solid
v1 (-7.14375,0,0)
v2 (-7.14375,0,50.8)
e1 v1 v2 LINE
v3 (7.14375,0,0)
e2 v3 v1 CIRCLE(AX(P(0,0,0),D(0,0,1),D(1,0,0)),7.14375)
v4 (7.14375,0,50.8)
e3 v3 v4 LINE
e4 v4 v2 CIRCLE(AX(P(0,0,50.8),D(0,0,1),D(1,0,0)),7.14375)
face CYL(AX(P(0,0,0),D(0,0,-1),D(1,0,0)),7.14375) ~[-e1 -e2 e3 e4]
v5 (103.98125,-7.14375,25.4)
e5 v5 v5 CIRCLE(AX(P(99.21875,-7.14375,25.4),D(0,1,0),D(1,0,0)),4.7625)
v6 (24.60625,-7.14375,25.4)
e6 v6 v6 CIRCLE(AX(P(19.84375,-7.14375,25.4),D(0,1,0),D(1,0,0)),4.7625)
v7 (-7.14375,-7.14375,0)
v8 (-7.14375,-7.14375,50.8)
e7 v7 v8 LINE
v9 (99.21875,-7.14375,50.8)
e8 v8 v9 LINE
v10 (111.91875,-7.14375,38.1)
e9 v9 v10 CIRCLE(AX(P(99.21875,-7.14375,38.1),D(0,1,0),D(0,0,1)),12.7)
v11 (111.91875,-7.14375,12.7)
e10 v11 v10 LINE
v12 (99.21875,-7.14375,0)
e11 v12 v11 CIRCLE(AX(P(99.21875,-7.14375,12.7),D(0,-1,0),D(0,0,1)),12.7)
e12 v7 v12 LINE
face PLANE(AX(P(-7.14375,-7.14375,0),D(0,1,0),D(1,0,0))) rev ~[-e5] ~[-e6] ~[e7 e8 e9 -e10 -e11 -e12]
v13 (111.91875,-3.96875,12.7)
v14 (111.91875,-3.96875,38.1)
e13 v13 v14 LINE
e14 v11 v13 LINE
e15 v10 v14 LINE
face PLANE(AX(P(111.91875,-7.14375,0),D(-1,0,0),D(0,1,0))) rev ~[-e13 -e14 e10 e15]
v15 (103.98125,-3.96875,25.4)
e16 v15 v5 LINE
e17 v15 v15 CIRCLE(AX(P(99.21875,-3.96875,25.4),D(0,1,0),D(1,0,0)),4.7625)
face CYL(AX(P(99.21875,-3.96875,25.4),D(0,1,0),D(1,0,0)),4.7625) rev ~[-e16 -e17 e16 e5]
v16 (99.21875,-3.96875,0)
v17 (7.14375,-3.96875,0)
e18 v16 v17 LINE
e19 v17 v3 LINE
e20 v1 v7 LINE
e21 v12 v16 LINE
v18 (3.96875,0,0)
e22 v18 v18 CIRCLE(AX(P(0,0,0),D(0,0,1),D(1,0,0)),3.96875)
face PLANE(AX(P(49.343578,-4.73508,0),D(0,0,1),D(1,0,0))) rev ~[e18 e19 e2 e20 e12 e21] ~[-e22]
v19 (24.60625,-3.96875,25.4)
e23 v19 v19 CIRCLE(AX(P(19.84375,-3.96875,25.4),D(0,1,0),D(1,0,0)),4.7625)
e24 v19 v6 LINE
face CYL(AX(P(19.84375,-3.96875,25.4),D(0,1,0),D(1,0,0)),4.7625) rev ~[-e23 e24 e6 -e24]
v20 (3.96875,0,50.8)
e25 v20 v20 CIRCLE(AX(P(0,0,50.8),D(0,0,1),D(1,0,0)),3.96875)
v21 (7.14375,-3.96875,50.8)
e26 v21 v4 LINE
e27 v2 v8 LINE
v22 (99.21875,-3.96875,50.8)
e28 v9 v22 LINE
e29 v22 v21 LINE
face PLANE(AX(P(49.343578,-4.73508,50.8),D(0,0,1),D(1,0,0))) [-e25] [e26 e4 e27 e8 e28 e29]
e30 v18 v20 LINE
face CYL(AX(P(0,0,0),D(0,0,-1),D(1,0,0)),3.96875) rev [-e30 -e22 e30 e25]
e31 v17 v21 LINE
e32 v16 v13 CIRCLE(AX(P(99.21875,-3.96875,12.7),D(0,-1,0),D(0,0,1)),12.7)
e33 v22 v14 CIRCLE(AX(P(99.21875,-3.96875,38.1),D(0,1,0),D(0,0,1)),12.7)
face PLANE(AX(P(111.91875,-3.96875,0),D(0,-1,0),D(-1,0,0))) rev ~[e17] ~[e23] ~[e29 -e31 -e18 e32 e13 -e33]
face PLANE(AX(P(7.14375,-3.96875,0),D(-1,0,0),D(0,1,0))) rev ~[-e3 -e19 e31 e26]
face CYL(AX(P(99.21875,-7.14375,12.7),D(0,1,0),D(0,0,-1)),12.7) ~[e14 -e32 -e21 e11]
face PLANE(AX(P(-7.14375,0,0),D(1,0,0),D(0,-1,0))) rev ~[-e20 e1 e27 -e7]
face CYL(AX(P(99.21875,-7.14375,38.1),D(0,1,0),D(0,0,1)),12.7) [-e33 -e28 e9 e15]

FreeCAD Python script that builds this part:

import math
import FreeCAD as App
import Part
import Sketcher
from FreeCAD import Vector
Q = App.Units.Quantity


def edges_at(feature, points):
    """Names of the edges that pass closest to the given points."""
    edges = feature.Shape.Edges
    near = lambda p: min(range(len(edges)), key=lambda i: edges[i].distToShape(Part.Vertex(*p))[0])
    return sorted({f"Edge{near(p) + 1}" for p in points})

doc = App.newDocument("Part")
body = doc.addObject("PartDesign::Body", "Body")

# Sketch on XY plane
sketch1 = doc.addObject("Sketcher::SketchObject", "Sketch")
body.addObject(sketch1)
sketch1.AttachmentSupport = (doc.XY_Plane, [""])
sketch1.MapMode = "FlatFace"
sketch1.addGeometry([
    Part.ArcOfCircle(Part.Circle(Vector(0, 0, 0), Vector(0, 0, 1), 7.1), math.radians(0), math.radians(180)),  # 0
    Part.LineSegment(Vector(-7.1, 0, 0), Vector(-7.1, -7.1, 0)),  # 1
    Part.LineSegment(Vector(-7.1, -7.1, 0), Vector(111.9, -7.1, 0)),  # 2
    Part.LineSegment(Vector(111.9, -7.1, 0), Vector(111.9, -4, 0)),  # 3
    Part.LineSegment(Vector(111.9, -4, 0), Vector(7.1, -4, 0)),  # 4
    Part.LineSegment(Vector(7.1, -4, 0), Vector(7.1, 0, 0)),  # 5
    Part.Circle(Vector(0, 0, 0), Vector(0, 0, 1), 4),  # 6
], False)
sketch1.addConstraint([
    Sketcher.Constraint("Tangent", 0, 2, 1, 1),
    Sketcher.Constraint("Coincident", 1, 2, 2, 1),
    Sketcher.Constraint("Coincident", 2, 2, 3, 1),
    Sketcher.Constraint("Coincident", 3, 2, 4, 1),
    Sketcher.Constraint("Coincident", 4, 2, 5, 1),
    Sketcher.Constraint("Tangent", 5, 2, 0, 1),
    Sketcher.Constraint("Vertical", 1),
    Sketcher.Constraint("Horizontal", 2),
    Sketcher.Constraint("Vertical", 3),
    Sketcher.Constraint("Horizontal", 4),
    Sketcher.Constraint("Vertical", 5),
    Sketcher.Constraint("Coincident", 0, 3, -1, 1),
    Sketcher.Constraint("Coincident", 6, 3, -1, 1),
    Sketcher.Constraint("Diameter", 6, Q("0.3125 in")),
    Sketcher.Constraint("Radius", 0, Q("0.28125 in")),
    Sketcher.Constraint("DistanceX", 2, 1, 2, 2, Q("4.6875 in")),
    Sketcher.Constraint("DistanceY", 1, 2, 1, 1, Q("0.28125 in")),
    Sketcher.Constraint("DistanceY", 3, 1, 3, 2, Q("0.125 in")),
])
pad1 = doc.addObject("PartDesign::Pad", "Pad")
body.addObject(pad1)
pad1.Profile = sketch1
pad1.Length = Q("2 in")

# Sketch on XZ plane
sketch2 = doc.addObject("Sketcher::SketchObject", "Sketch001")
body.addObject(sketch2)
sketch2.AttachmentSupport = (doc.XZ_Plane, [""])
sketch2.MapMode = "FlatFace"
sketch2.AttachmentOffset = App.Placement(Vector(0, 0, 0.15625 * 25.4), App.Rotation())
sketch2.addGeometry([
    Part.Circle(Vector(19.8, 25.4, 0), Vector(0, 0, 1), 4.8),
    Part.Circle(Vector(99.2, 25.4, 0), Vector(0, 0, 1), 4.8),
], False)
sketch2.addConstraint([
    Sketcher.Constraint("Equal", 0, 1),
    Sketcher.Constraint("Horizontal", 0, 3, 1, 3),
    Sketcher.Constraint("Diameter", 0, Q("0.375 in")),
    Sketcher.Constraint("DistanceY", -1, 1, 0, 3, Q("1 in")),
    Sketcher.Constraint("DistanceX", -1, 1, 0, 3, Q("0.78125 in")),
    Sketcher.Constraint("DistanceX", -1, 1, 1, 3, Q("3.90625 in")),
])
pocket1 = doc.addObject("PartDesign::Pocket", "Pocket")
body.addObject(pocket1)
pocket1.Profile = sketch2
pocket1.Length = Q("0.5 in")
pocket1.Reversed = True
doc.recompute()

fillet = doc.addObject("PartDesign::Fillet", "Fillet")
body.addObject(fillet)
fillet.Base = (pocket1, edges_at(pocket1, [(111.919, -5.556, 0), (111.919, -5.556, 50.8)]))
fillet.Radius = Q("0.5 in")

doc.recompute()
